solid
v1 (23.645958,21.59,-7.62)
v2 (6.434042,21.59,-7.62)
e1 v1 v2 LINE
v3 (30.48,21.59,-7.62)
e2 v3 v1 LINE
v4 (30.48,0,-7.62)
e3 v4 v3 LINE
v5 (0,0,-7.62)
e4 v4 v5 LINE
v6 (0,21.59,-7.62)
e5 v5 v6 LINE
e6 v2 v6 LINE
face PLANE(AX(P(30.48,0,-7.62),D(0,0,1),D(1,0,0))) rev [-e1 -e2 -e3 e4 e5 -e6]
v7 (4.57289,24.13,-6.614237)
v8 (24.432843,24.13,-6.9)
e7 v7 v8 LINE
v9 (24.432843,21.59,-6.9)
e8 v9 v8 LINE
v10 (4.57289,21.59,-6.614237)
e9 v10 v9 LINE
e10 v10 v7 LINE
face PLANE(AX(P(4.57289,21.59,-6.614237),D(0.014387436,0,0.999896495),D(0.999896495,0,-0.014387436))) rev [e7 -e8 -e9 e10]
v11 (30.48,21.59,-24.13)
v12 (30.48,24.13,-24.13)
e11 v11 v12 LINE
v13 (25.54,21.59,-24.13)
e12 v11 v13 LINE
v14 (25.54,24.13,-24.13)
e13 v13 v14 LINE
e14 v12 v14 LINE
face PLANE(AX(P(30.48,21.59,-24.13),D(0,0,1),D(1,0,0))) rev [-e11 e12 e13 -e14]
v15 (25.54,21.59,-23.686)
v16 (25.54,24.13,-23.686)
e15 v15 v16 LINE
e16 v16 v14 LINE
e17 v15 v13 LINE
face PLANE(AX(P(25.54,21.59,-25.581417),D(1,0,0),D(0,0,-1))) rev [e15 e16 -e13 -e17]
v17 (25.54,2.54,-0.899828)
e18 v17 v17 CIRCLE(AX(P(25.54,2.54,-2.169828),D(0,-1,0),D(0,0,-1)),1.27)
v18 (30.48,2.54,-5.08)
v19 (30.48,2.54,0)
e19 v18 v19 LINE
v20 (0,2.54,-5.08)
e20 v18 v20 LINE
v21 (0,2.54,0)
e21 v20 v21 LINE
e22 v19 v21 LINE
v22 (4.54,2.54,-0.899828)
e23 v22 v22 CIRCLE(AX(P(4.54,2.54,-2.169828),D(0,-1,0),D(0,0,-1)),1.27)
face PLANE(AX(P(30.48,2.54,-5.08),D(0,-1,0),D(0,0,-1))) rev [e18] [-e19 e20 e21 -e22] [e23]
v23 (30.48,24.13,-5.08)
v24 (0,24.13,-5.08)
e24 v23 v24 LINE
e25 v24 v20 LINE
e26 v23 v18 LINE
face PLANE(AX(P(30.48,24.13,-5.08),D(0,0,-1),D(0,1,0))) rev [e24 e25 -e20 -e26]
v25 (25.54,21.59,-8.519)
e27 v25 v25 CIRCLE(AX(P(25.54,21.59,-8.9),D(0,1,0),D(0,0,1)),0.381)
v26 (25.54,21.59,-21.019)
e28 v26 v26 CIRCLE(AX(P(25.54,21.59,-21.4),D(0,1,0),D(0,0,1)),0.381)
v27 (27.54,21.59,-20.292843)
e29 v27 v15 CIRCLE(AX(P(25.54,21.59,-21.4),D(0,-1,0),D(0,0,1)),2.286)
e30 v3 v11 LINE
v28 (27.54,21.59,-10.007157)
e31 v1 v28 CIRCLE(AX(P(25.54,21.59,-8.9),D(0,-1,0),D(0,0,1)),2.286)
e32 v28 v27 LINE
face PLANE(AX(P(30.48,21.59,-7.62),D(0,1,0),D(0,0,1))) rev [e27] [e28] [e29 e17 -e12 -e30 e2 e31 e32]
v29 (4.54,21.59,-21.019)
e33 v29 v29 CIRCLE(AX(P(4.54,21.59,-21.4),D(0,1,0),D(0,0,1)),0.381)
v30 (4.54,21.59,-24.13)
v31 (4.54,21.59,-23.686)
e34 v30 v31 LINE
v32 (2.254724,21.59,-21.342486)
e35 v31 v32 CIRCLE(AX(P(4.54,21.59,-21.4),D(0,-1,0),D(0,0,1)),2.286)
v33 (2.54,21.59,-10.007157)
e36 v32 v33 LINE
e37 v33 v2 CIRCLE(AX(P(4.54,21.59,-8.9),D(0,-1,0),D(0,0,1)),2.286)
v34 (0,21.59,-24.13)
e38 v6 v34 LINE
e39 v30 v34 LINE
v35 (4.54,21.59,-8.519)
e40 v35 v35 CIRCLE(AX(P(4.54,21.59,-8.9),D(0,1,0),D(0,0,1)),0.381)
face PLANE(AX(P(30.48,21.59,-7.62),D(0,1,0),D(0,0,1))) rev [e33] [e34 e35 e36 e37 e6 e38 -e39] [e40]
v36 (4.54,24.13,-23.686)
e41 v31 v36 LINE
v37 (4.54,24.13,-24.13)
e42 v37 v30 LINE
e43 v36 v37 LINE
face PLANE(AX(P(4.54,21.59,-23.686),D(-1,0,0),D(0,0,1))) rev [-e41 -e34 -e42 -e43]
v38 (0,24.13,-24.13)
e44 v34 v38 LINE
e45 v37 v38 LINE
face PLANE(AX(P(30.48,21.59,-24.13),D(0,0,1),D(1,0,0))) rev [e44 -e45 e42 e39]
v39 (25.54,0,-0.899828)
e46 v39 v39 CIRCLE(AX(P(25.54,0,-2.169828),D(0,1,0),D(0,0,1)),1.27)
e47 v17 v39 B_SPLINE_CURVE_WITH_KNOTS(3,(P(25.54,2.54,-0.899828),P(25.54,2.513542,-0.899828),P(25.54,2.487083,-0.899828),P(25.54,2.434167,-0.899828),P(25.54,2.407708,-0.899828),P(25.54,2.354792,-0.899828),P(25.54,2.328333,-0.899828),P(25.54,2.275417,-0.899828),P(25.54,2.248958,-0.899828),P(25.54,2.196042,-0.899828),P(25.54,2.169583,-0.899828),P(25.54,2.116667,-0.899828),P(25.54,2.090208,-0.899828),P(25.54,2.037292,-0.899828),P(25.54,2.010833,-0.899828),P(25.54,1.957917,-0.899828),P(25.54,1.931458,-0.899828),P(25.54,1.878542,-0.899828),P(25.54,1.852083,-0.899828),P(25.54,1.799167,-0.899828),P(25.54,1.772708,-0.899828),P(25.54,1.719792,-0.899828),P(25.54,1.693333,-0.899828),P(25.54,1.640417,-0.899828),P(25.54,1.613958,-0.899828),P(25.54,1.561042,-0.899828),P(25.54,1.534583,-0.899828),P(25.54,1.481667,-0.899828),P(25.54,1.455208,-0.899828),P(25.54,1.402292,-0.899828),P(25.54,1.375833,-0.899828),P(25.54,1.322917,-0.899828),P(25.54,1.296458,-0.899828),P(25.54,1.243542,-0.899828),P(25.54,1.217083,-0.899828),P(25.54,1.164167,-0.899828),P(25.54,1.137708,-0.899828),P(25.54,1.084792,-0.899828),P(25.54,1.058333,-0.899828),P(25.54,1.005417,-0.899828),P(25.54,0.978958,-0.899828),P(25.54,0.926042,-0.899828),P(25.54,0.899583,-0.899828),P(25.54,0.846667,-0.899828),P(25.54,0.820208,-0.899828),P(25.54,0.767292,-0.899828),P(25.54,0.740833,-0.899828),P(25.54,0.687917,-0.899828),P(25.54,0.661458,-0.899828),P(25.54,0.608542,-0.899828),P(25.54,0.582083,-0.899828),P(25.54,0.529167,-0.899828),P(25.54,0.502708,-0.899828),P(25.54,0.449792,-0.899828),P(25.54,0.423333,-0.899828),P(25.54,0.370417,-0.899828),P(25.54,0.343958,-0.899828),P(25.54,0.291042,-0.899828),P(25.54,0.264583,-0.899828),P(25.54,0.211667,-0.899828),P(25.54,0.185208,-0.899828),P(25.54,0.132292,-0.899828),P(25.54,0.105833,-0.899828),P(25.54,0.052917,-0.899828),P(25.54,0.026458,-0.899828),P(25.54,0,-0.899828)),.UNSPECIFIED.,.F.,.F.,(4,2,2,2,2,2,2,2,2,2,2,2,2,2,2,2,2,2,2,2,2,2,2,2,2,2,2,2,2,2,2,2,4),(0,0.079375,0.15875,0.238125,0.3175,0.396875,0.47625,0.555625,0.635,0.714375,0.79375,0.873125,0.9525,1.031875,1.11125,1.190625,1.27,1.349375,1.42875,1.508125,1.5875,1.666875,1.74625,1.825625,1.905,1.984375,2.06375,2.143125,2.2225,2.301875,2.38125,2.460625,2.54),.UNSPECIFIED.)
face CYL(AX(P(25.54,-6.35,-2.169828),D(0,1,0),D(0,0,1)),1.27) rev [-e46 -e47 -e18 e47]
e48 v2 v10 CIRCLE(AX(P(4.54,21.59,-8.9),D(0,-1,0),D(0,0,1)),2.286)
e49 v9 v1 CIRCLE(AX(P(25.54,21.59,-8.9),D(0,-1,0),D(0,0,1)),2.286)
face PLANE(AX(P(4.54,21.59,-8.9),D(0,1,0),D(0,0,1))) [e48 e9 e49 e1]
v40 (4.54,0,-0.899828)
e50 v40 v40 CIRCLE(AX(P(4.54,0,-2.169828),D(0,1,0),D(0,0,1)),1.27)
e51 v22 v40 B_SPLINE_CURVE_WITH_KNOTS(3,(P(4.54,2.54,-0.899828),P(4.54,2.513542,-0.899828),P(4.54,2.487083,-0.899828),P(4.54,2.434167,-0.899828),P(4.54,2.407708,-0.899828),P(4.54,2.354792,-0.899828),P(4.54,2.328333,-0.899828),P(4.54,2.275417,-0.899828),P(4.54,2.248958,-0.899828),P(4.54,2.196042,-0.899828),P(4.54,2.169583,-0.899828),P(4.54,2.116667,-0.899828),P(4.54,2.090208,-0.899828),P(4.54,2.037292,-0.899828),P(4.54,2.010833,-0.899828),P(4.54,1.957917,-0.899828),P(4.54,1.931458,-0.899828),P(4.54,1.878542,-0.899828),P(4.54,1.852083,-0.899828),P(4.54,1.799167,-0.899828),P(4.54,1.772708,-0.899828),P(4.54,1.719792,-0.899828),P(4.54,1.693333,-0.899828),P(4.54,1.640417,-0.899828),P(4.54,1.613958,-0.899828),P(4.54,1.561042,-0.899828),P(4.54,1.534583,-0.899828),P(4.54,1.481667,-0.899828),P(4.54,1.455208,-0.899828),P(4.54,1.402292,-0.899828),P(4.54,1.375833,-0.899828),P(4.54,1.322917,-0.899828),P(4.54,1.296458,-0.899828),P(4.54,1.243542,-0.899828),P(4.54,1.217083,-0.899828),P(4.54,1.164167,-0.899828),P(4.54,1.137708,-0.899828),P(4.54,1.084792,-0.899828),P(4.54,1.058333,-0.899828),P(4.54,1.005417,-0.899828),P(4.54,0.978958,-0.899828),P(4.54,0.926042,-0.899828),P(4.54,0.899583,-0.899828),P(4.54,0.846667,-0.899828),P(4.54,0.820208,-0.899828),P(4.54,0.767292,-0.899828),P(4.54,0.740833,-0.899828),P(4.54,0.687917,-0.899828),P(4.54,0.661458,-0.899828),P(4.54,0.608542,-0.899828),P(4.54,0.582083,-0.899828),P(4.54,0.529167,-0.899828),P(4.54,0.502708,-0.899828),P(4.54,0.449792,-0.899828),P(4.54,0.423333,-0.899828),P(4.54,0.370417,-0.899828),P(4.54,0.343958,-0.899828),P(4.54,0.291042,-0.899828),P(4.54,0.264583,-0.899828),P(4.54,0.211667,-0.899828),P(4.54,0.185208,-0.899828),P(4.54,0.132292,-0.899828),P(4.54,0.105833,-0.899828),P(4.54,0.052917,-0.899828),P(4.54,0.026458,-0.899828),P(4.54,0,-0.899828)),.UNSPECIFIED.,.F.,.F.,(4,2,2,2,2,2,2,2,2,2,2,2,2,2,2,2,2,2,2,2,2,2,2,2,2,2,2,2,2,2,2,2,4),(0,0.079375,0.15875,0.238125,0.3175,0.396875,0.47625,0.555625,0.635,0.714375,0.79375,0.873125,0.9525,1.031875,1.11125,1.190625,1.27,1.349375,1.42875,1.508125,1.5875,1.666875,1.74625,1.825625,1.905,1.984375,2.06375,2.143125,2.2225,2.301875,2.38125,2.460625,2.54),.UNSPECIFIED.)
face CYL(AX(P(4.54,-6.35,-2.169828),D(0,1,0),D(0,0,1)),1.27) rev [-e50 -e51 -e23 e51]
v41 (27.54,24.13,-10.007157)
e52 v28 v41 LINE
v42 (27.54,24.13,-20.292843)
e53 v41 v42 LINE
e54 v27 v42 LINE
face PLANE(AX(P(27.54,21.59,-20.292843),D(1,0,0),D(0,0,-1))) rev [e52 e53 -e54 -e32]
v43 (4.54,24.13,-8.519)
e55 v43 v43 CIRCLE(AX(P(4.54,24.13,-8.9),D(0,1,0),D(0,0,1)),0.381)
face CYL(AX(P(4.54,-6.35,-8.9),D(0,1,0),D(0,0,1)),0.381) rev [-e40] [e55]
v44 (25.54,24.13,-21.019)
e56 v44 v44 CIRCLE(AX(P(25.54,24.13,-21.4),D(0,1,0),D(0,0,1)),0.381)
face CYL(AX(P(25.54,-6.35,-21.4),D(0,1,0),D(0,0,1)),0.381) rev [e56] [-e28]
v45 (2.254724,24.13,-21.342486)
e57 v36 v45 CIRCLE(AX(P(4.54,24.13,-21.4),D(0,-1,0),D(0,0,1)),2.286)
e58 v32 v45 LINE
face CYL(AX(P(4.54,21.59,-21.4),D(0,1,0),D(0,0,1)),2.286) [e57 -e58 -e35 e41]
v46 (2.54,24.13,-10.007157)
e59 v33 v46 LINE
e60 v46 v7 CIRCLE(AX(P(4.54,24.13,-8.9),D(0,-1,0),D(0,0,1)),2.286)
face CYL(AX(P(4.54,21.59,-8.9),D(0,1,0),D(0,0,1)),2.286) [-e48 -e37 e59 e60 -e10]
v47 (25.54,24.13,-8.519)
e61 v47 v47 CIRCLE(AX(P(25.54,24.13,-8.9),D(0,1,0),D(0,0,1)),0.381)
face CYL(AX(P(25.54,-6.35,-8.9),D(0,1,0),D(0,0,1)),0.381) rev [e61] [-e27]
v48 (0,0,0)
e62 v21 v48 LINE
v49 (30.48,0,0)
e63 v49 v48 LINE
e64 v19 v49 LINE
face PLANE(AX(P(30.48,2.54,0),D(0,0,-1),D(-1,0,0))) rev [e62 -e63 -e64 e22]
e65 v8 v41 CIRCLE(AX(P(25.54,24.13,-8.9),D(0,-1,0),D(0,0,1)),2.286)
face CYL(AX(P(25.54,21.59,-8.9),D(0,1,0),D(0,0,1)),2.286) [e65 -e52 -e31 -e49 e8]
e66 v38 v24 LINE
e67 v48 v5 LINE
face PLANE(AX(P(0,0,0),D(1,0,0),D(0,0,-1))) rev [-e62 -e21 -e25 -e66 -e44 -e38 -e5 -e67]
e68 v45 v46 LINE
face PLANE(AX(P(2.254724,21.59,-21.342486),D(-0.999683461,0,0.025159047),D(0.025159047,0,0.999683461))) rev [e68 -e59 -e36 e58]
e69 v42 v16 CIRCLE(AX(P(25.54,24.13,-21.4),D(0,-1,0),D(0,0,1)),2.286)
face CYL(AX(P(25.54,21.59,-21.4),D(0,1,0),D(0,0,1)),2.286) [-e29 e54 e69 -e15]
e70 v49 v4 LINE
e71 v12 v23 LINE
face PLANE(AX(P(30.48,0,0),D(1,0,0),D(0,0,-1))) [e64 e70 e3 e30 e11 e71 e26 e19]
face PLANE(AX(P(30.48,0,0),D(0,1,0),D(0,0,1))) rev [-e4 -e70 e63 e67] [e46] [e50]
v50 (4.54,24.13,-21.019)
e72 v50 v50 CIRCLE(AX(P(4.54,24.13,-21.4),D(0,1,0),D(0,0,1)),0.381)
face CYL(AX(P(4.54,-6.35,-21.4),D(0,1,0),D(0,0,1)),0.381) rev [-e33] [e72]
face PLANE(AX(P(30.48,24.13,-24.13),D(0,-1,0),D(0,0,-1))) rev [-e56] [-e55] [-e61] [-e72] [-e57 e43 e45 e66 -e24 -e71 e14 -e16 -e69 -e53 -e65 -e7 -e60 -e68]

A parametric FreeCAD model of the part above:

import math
import FreeCAD as App
import Part
import Sketcher
Q = App.Units.Quantity


def add_polygon(sketch, points):
    """Adds a closed chain of lines whose ends are joined by coincident constraints."""
    first, n = sketch.GeometryCount, len(points)
    for a, b in zip(points, points[1:] + points[:1]):
        sketch.addGeometry(Part.LineSegment(App.Vector(*a, 0), App.Vector(*b, 0)), False)
    for i in range(n):
        sketch.addConstraint(Sketcher.Constraint("Coincident", first + i, 2, first + (i + 1) % n, 1))

doc = App.newDocument("Part")
body = doc.addObject("PartDesign::Body", "Body")

sketch1 = body.newObject("Sketcher::SketchObject", "Sketch")
sketch1.AttachmentSupport = (doc.getObject("YZ_Plane"), [""])
sketch1.MapMode = "FlatFace"
add_polygon(sketch1, [(0, 0), (0, -7.62), (21.59, -7.62), (21.59, -24.13), (24.13, -24.13), (24.13, -5.08), (2.54, -5.08), (2.54, 0)])
sketch1.addConstraint([
    Sketcher.Constraint("Vertical", 0),
    Sketcher.Constraint("Horizontal", 1),
    Sketcher.Constraint("Vertical", 2),
    Sketcher.Constraint("Horizontal", 3),
    Sketcher.Constraint("Vertical", 4),
    Sketcher.Constraint("Horizontal", 5),
    Sketcher.Constraint("Vertical", 6),
    Sketcher.Constraint("Horizontal", 7),
    Sketcher.Constraint("Coincident", 7, 2, -1, 1),
    Sketcher.Constraint("Equal", 1, 5),
    Sketcher.Constraint("DistanceX", 3, 1, 3, 2, Q("0.1 in")),
    Sketcher.Constraint("DistanceY", 0, 2, 0, 1, Q("0.3 in")),
    Sketcher.Constraint("DistanceY", 6, 1, 6, 2, Q("0.2 in")),
    Sketcher.Constraint("DistanceX", 1, 1, 1, 2, Q("0.85 in")),
    Sketcher.Constraint("DistanceY", 2, 2, 2, 1, Q("0.65 in")),
])
pad1 = body.newObject("PartDesign::Pad", "Pad")
pad1.Profile = sketch1
pad1.Length = Q("1.2 in")

sketch2 = body.newObject("Sketcher::SketchObject", "Sketch001")
sketch2.AttachmentSupport = (doc.getObject("XZ_Plane"), [""])
sketch2.MapMode = "FlatFace"
sketch2.AttachmentOffset = App.Placement(App.Vector(0, 0, -0.95 * 25.4), App.Rotation())
sketch2.addGeometry([
    Part.LineSegment(App.Vector(2.254724, -21.342486, 0), App.Vector(2.54, -10.007157, 0)),
    Part.ArcOfCircle(Part.Circle(App.Vector(4.54, -8.9, 0), App.Vector(0, 0, 1), 2.286), math.radians(-151.032035), math.radians(89.175632)),
    Part.LineSegment(App.Vector(4.57289, -6.614237, 0), App.Vector(24.432843, -6.9, 0)),
    Part.ArcOfCircle(Part.Circle(App.Vector(25.54, -8.9, 0), App.Vector(0, 0, 1), 2.286), math.radians(118.967965), math.radians(331.032035)),
    Part.LineSegment(App.Vector(27.54, -10.007157, 0), App.Vector(27.54, -20.292843, 0)),
    Part.ArcOfCircle(Part.Circle(App.Vector(25.54, -21.4, 0), App.Vector(0, 0, 1), 2.286), math.radians(28.967965), math.radians(270)),
    Part.LineSegment(App.Vector(25.54, -23.686, 0), App.Vector(25.54, -25.581417, 0)),
    Part.LineSegment(App.Vector(25.54, -25.581417, 0), App.Vector(4.54, -25.8453, 0)),
    Part.LineSegment(App.Vector(4.54, -25.8453, 0), App.Vector(4.54, -23.686, 0)),
    Part.ArcOfCircle(Part.Circle(App.Vector(4.54, -21.4, 0), App.Vector(0, 0, 1), 2.286), math.radians(-90), math.radians(178.558341)),
], False)
sketch2.addConstraint([
    Sketcher.Constraint("Coincident", 0, 2, 1, 1),
    Sketcher.Constraint("Tangent", 1, 2, 2, 1),
    Sketcher.Constraint("Coincident", 2, 2, 3, 1),
    Sketcher.Constraint("Coincident", 3, 2, 4, 1),
    Sketcher.Constraint("Coincident", 4, 2, 5, 1),
    Sketcher.Constraint("Coincident", 5, 2, 6, 1),
    Sketcher.Constraint("Coincident", 6, 2, 7, 1),
    Sketcher.Constraint("Coincident", 7, 2, 8, 1),
    Sketcher.Constraint("Coincident", 8, 2, 9, 1),
    Sketcher.Constraint("Tangent", 9, 2, 0, 1),
    Sketcher.Constraint("Vertical", 4),
    Sketcher.Constraint("Vertical", 6),
    Sketcher.Constraint("Vertical", 8),
    Sketcher.Constraint("Equal", 1, 3),
    Sketcher.Constraint("Equal", 3, 5),
    Sketcher.Constraint("Equal", 5, 9),
    Sketcher.Constraint("Horizontal", 1, 3, 3, 3),
    Sketcher.Constraint("Horizontal", 5, 3, 9, 3),
    Sketcher.Constraint("Horizontal", 0, 2, 3, 2),
    Sketcher.Constraint("Vertical", 3, 3, 5, 3),
    Sketcher.Constraint("Vertical", 1, 3, 9, 3),
    Sketcher.Constraint("Vertical", 3, 3, 5, 2),
    Sketcher.Constraint("Vertical", 9, 3, 7, 2),
    Sketcher.Constraint("Radius", 1, Q("0.09 in")),
    Sketcher.Constraint("DistanceX", -1, 1, 0, 2, Q("0.1 in")),
    Sketcher.Constraint("DistanceY", 8, 1, 8, 2, Q("2.1593 mm")),
    Sketcher.Constraint("DistanceX", -1, 1, 1, 3, Q("4.54 mm")),
    Sketcher.Constraint("DistanceY", 1, 3, -1, 1, Q("8.9 mm")),
    Sketcher.Constraint("DistanceX", -1, 1, 3, 3, Q("25.54 mm")),
    Sketcher.Constraint("DistanceY", 5, 3, -1, 1, Q("21.4 mm")),
    Sketcher.Constraint("DistanceY", 2, 2, -1, 1, Q("6.9 mm")),
    Sketcher.Constraint("DistanceY", 6, 2, 6, 1, Q("1.895417 mm")),
])
pocket1 = body.newObject("PartDesign::Pocket", "Pocket")
pocket1.Profile = sketch2
pocket1.Length = Q("0.1 in")
pocket1.Reversed = True

sketch3 = body.newObject("Sketcher::SketchObject", "Sketch002")
sketch3.AttachmentSupport = (doc.getObject("XZ_Plane"), [""])
sketch3.MapMode = "FlatFace"
sketch3.AttachmentOffset = App.Placement(App.Vector(0, 0, -0.95 * 25.4), App.Rotation())
sketch3.addGeometry([
    Part.Circle(App.Vector(4.54, -8.9, 0), App.Vector(0, 0, 1), 0.381),
    Part.Circle(App.Vector(4.54, -21.4, 0), App.Vector(0, 0, 1), 0.381),
    Part.Circle(App.Vector(25.54, -21.4, 0), App.Vector(0, 0, 1), 0.381),
    Part.Circle(App.Vector(25.54, -8.9, 0), App.Vector(0, 0, 1), 0.381),
    Part.Circle(App.Vector(4.54, -2.169828, 0), App.Vector(0, 0, 1), 1.27),
    Part.Circle(App.Vector(25.54, -2.169828, 0), App.Vector(0, 0, 1), 1.27),
], False)
sketch3.addConstraint([
    Sketcher.Constraint("Equal", 0, 1),
    Sketcher.Constraint("Equal", 1, 2),
    Sketcher.Constraint("Equal", 2, 3),
    Sketcher.Constraint("Equal", 4, 5),
    Sketcher.Constraint("Horizontal", 1, 3, 2, 3),
    Sketcher.Constraint("Horizontal", 0, 3, 3, 3),
    Sketcher.Constraint("Horizontal", 4, 3, 5, 3),
    Sketcher.Constraint("Vertical", 0, 3, 1, 3),
    Sketcher.Constraint("Vertical", 2, 3, 3, 3),
    Sketcher.Constraint("Vertical", 1, 3, 4, 3),
    Sketcher.Constraint("Vertical", 3, 3, 5, 3),
    Sketcher.Constraint("Diameter", 4, Q("0.1 in")),
    Sketcher.Constraint("Diameter", 0, Q("0.03 in")),
    Sketcher.Constraint("DistanceX", -1, 1, 0, 3, Q("4.54 mm")),
    Sketcher.Constraint("DistanceY", 0, 3, -1, 1, Q("8.9 mm")),
    Sketcher.Constraint("DistanceY", 1, 3, -1, 1, Q("21.4 mm")),
    Sketcher.Constraint("DistanceX", -1, 1, 2, 3, Q("25.54 mm")),
    Sketcher.Constraint("DistanceY", 4, 3, -1, 1, Q("2.169828 mm")),
])
pocket2 = body.newObject("PartDesign::Pocket", "Pocket001")
pocket2.Profile = sketch3
pocket2.Length = Q("1.2 in")
pocket2.Reversed = True

doc.recompute()
